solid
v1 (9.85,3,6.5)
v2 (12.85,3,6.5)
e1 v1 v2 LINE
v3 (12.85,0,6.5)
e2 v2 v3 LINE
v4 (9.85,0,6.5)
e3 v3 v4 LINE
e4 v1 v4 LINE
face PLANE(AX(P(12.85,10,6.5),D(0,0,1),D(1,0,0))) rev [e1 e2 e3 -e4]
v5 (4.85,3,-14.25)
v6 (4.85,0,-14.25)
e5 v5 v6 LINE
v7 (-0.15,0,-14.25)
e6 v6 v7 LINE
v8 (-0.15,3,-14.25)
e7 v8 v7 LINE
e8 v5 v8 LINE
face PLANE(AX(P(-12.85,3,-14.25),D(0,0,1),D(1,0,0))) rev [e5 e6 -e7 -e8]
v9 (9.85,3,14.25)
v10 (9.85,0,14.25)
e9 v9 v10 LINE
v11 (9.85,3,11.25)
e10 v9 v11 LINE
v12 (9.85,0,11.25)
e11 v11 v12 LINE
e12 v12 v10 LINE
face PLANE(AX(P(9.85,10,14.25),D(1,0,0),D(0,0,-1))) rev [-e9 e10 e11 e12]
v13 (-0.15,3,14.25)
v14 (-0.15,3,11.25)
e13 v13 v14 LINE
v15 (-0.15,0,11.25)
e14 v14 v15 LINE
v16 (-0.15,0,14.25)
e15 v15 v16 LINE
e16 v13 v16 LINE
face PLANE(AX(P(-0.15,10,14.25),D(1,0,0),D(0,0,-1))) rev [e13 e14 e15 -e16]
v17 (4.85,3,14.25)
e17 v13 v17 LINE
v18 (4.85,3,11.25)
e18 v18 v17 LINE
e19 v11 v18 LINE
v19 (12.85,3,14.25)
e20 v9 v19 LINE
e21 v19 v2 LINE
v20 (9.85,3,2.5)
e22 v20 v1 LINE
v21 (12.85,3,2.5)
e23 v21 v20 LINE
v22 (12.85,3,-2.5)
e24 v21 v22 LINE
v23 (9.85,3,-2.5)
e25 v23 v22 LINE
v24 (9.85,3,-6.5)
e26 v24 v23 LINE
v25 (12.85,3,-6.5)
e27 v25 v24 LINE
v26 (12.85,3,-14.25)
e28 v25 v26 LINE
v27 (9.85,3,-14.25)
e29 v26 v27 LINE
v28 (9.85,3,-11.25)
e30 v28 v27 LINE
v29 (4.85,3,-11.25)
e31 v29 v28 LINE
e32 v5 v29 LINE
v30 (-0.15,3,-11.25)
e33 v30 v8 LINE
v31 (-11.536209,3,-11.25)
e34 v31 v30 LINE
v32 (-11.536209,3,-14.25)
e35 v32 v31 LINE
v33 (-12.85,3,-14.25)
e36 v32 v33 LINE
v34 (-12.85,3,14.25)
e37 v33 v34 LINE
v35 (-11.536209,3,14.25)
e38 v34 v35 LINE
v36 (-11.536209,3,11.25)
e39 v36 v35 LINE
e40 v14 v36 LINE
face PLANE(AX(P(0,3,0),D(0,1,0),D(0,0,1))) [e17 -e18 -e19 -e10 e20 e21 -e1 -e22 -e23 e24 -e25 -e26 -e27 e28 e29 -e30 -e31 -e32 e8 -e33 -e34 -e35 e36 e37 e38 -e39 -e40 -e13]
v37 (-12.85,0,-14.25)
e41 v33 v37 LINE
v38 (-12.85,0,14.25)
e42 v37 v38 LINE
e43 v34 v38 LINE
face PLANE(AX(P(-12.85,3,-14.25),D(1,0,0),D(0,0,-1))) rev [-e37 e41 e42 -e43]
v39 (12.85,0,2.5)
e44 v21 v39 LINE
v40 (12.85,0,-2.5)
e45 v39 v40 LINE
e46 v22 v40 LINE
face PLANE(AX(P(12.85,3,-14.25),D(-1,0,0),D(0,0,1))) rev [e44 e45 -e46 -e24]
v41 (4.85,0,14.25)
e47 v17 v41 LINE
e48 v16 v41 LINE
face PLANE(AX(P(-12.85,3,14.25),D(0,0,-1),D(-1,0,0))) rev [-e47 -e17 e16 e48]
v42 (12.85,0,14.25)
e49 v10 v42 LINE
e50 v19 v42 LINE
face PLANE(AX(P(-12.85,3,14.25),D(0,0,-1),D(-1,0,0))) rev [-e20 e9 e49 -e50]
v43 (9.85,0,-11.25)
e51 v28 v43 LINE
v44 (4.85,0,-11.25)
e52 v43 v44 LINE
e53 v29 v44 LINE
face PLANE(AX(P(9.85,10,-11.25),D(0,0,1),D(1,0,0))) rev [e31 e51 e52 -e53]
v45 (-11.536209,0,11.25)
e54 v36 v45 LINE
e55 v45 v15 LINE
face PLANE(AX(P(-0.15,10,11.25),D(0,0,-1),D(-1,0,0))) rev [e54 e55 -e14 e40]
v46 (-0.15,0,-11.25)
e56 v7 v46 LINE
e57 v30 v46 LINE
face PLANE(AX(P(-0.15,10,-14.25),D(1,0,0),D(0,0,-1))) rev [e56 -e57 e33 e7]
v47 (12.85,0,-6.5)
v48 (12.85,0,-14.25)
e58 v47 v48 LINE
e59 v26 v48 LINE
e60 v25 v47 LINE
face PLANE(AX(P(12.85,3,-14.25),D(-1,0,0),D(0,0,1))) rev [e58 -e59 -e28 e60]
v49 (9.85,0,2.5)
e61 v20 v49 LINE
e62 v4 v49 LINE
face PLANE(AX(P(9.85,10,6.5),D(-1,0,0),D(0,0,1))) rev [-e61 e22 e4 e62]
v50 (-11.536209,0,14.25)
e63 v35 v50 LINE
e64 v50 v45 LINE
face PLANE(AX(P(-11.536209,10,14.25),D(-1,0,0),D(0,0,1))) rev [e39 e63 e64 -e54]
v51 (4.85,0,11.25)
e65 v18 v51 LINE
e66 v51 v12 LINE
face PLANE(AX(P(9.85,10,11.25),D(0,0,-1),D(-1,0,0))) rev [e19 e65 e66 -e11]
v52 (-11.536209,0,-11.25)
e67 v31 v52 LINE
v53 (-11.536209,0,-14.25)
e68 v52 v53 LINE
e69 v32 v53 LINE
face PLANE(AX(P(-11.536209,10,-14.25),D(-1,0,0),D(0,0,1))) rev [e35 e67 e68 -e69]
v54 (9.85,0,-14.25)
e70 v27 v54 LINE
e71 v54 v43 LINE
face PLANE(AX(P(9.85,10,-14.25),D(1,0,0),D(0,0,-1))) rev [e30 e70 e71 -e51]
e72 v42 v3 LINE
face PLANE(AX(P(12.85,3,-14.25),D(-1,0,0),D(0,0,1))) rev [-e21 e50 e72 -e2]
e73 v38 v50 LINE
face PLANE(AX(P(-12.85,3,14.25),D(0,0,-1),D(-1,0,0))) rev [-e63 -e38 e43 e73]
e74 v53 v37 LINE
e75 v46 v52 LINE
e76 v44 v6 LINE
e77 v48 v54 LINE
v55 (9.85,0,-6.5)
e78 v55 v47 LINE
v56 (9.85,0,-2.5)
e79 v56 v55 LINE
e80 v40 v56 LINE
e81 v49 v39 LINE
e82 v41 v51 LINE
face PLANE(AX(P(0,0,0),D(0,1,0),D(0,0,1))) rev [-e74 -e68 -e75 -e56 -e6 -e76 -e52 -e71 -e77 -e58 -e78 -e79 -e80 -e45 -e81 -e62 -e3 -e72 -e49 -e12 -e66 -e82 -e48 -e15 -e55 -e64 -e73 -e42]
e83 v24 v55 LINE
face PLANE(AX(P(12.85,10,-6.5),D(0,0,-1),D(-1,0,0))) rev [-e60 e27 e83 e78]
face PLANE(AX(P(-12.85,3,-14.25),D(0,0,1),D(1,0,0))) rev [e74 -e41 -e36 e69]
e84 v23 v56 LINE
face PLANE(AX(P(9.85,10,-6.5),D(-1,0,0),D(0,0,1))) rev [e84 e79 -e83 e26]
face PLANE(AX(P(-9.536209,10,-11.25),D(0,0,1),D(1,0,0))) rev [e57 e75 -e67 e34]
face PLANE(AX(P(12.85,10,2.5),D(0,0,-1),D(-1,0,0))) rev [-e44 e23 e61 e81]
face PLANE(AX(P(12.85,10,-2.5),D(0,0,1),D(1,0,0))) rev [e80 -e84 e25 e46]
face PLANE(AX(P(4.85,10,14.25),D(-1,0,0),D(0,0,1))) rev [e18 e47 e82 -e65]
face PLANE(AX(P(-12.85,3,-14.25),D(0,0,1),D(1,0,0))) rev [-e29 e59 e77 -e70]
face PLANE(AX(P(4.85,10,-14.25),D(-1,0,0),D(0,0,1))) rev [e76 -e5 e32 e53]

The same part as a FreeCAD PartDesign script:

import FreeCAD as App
import Part
import Sketcher
Q = App.Units.Quantity

doc = App.newDocument("Part")
body = doc.addObject("PartDesign::Body", "Body")

sketch1 = doc.addObject("Sketcher::SketchObject", "Sketch")
body.addObject(sketch1)
sketch1.AttachmentSupport = (doc.XZ_Plane, [""])
sketch1.MapMode = "FlatFace"
sketch1.addGeometry([
    Part.LineSegment(App.Vector(-13, -14, 0), App.Vector(-13, 14, 0)),
    Part.LineSegment(App.Vector(-13, 14, 0), App.Vector(13, 14, 0)),
    Part.LineSegment(App.Vector(13, 14, 0), App.Vector(13, -14, 0)),
    Part.LineSegment(App.Vector(13, -14, 0), App.Vector(-13, -14, 0)),
], False)
sketch1.addConstraint([
    Sketcher.Constraint("Coincident", 0, 2, 1, 1),
    Sketcher.Constraint("Coincident", 1, 2, 2, 1),
    Sketcher.Constraint("Coincident", 2, 2, 3, 1),
    Sketcher.Constraint("Coincident", 3, 2, 0, 1),
    Sketcher.Constraint("Vertical", 0),
    Sketcher.Constraint("Horizontal", 1),
    Sketcher.Constraint("Vertical", 2),
    Sketcher.Constraint("Horizontal", 3),
    Sketcher.Constraint("Symmetric", 0, 2, 2, 2, -1, 1),
    Sketcher.Constraint("DistanceX", 1, 1, 1, 2, Q("25.7 mm")),
    Sketcher.Constraint("DistanceY", 0, 1, 0, 2, Q("28.5 mm")),
])
pad1 = doc.addObject("PartDesign::Pad", "Pad")
body.addObject(pad1)
pad1.Profile = sketch1
pad1.Length = 3
pad1.Reversed = True

sketch2 = doc.addObject("Sketcher::SketchObject", "Sketch001")
body.addObject(sketch2)
sketch2.AttachmentSupport = (doc.XZ_Plane, [""])
sketch2.MapMode = "FlatFace"
sketch2.addGeometry([
    Part.LineSegment(App.Vector(4.8, -11.2, 0), App.Vector(4.8, -14.2, 0)),
    Part.LineSegment(App.Vector(4.8, -14.2, 0), App.Vector(9.8, -14.2, 0)),
    Part.LineSegment(App.Vector(9.8, -14.2, 0), App.Vector(9.8, -11.2, 0)),
    Part.LineSegment(App.Vector(9.8, -11.2, 0), App.Vector(4.8, -11.2, 0)),
    Part.LineSegment(App.Vector(-5.2, -11.2, 0), App.Vector(-5.2, -14.2, 0)),
    Part.LineSegment(App.Vector(-5.2, -14.2, 0), App.Vector(-0.1, -14.2, 0)),
    Part.LineSegment(App.Vector(-0.1, -14.2, 0), App.Vector(-0.1, -11.2, 0)),
    Part.LineSegment(App.Vector(-0.1, -11.2, 0), App.Vector(-5.2, -11.2, 0)),
    Part.LineSegment(App.Vector(-5.2, 14.2, 0), App.Vector(-5.2, 11.2, 0)),
    Part.LineSegment(App.Vector(-5.2, 11.2, 0), App.Vector(-0.1, 11.2, 0)),
    Part.LineSegment(App.Vector(-0.1, 11.2, 0), App.Vector(-0.1, 14.2, 0)),
    Part.LineSegment(App.Vector(-0.1, 14.2, 0), App.Vector(-5.2, 14.2, 0)),
    Part.LineSegment(App.Vector(4.8, 14.2, 0), App.Vector(4.8, 11.2, 0)),
    Part.LineSegment(App.Vector(4.8, 11.2, 0), App.Vector(9.8, 11.2, 0)),
    Part.LineSegment(App.Vector(9.8, 11.2, 0), App.Vector(9.8, 14.2, 0)),
    Part.LineSegment(App.Vector(9.8, 14.2, 0), App.Vector(4.8, 14.2, 0)),
    Part.LineSegment(App.Vector(-11.5, 14.2, 0), App.Vector(-11.5, 11.2, 0)),
    Part.LineSegment(App.Vector(-11.5, 11.2, 0), App.Vector(-9.5, 11.2, 0)),
    Part.LineSegment(App.Vector(-9.5, 11.2, 0), App.Vector(-9.5, 14.2, 0)),
    Part.LineSegment(App.Vector(-9.5, 14.2, 0), App.Vector(-11.5, 14.2, 0)),
    Part.LineSegment(App.Vector(-11.5, -11.2, 0), App.Vector(-11.5, -14.2, 0)),
    Part.LineSegment(App.Vector(-11.5, -14.2, 0), App.Vector(-9.5, -14.2, 0)),
    Part.LineSegment(App.Vector(-9.5, -14.2, 0), App.Vector(-9.5, -11.2, 0)),
    Part.LineSegment(App.Vector(-9.5, -11.2, 0), App.Vector(-11.5, -11.2, 0)),
    Part.LineSegment(App.Vector(9.8, -2.5, 0), App.Vector(9.8, -6.5, 0)),
    Part.LineSegment(App.Vector(9.8, -6.5, 0), App.Vector(12.8, -6.5, 0)),
    Part.LineSegment(App.Vector(12.8, -6.5, 0), App.Vector(12.8, -2.5, 0)),
    Part.LineSegment(App.Vector(12.8, -2.5, 0), App.Vector(9.8, -2.5, 0)),
    Part.LineSegment(App.Vector(9.8, 6.5, 0), App.Vector(9.8, 2.5, 0)),
    Part.LineSegment(App.Vector(9.8, 2.5, 0), App.Vector(12.8, 2.5, 0)),
    Part.LineSegment(App.Vector(12.8, 2.5, 0), App.Vector(12.8, 6.5, 0)),
    Part.LineSegment(App.Vector(12.8, 6.5, 0), App.Vector(9.8, 6.5, 0)),
], False)
sketch2.addConstraint([
    Sketcher.Constraint("Coincident", 0, 2, 1, 1),
    Sketcher.Constraint("Coincident", 1, 2, 2, 1),
    Sketcher.Constraint("Coincident", 2, 2, 3, 1),
    Sketcher.Constraint("Coincident", 3, 2, 0, 1),
    Sketcher.Constraint("Coincident", 4, 2, 5, 1),
    Sketcher.Constraint("Coincident", 5, 2, 6, 1),
    Sketcher.Constraint("Coincident", 6, 2, 7, 1),
    Sketcher.Constraint("Coincident", 7, 2, 4, 1),
    Sketcher.Constraint("Coincident", 8, 2, 9, 1),
    Sketcher.Constraint("Coincident", 9, 2, 10, 1),
    Sketcher.Constraint("Coincident", 10, 2, 11, 1),
    Sketcher.Constraint("Coincident", 11, 2, 8, 1),
    Sketcher.Constraint("Coincident", 12, 2, 13, 1),
    Sketcher.Constraint("Coincident", 13, 2, 14, 1),
    Sketcher.Constraint("Coincident", 14, 2, 15, 1),
    Sketcher.Constraint("Coincident", 15, 2, 12, 1),
    Sketcher.Constraint("Coincident", 16, 2, 17, 1),
    Sketcher.Constraint("Coincident", 17, 2, 18, 1),
    Sketcher.Constraint("Coincident", 18, 2, 19, 1),
    Sketcher.Constraint("Coincident", 19, 2, 16, 1),
    Sketcher.Constraint("Coincident", 20, 2, 21, 1),
    Sketcher.Constraint("Coincident", 21, 2, 22, 1),
    Sketcher.Constraint("Coincident", 22, 2, 23, 1),
    Sketcher.Constraint("Coincident", 23, 2, 20, 1),
    Sketcher.Constraint("Coincident", 24, 2, 25, 1),
    Sketcher.Constraint("Coincident", 25, 2, 26, 1),
    Sketcher.Constraint("Coincident", 26, 2, 27, 1),
    Sketcher.Constraint("Coincident", 27, 2, 24, 1),
    Sketcher.Constraint("Coincident", 28, 2, 29, 1),
    Sketcher.Constraint("Coincident", 29, 2, 30, 1),
    Sketcher.Constraint("Coincident", 30, 2, 31, 1),
    Sketcher.Constraint("Coincident", 31, 2, 28, 1),
    Sketcher.Constraint("Vertical", 0),
    Sketcher.Constraint("Horizontal", 1),
    Sketcher.Constraint("Vertical", 2),
    Sketcher.Constraint("Horizontal", 3),
    Sketcher.Constraint("Vertical", 4),
    Sketcher.Constraint("Horizontal", 5),
    Sketcher.Constraint("Vertical", 6),
    Sketcher.Constraint("Horizontal", 7),
    Sketcher.Constraint("Vertical", 8),
    Sketcher.Constraint("Horizontal", 9),
    Sketcher.Constraint("Vertical", 10),
    Sketcher.Constraint("Horizontal", 11),
    Sketcher.Constraint("Vertical", 12),
    Sketcher.Constraint("Horizontal", 13),
    Sketcher.Constraint("Vertical", 14),
    Sketcher.Constraint("Horizontal", 15),
    Sketcher.Constraint("Vertical", 16),
    Sketcher.Constraint("Horizontal", 17),
    Sketcher.Constraint("Vertical", 18),
    Sketcher.Constraint("Horizontal", 19),
    Sketcher.Constraint("Vertical", 20),
    Sketcher.Constraint("Horizontal", 21),
    Sketcher.Constraint("Vertical", 22),
    Sketcher.Constraint("Horizontal", 23),
    Sketcher.Constraint("Vertical", 24),
    Sketcher.Constraint("Horizontal", 25),
    Sketcher.Constraint("Vertical", 26),
    Sketcher.Constraint("Horizontal", 27),
    Sketcher.Constraint("Vertical", 28),
    Sketcher.Constraint("Horizontal", 29),
    Sketcher.Constraint("Vertical", 30),
    Sketcher.Constraint("Horizontal", 31),
    Sketcher.Constraint("Symmetric", 7, 2, 8, 2, -1),
    Sketcher.Constraint("Symmetric", 5, 2, 10, 2, -1),
    Sketcher.Constraint("Symmetric", 3, 2, 12, 2, -1),
    Sketcher.Constraint("Symmetric", 1, 2, 14, 2, -1),
    Sketcher.Constraint("Symmetric", 19, 2, 20, 2, -1),
    Sketcher.Constraint("Symmetric", 17, 2, 22, 2, -1),
    Sketcher.Constraint("Symmetric", 27, 2, 28, 2, -1),
    Sketcher.Constraint("Symmetric", 25, 2, 30, 2, -1),
    Sketcher.Constraint("Horizontal", 1, 2, 4, 2),
    Sketcher.Constraint("Horizontal", 3, 2, 6, 2),
    Sketcher.Constraint("Horizontal", 13, 2, 16, 2),
    Sketcher.Constraint("Horizontal", 15, 2, 18, 2),
    Sketcher.Constraint("Vertical", 14, 2, 24, 2),
    Sketcher.Constraint("Equal", 3, 5),
    Sketcher.Constraint("Equal", 31, 0),
    Sketcher.Constraint("DistanceX", 1, 1, 1, 2, Q("5 mm")),
    Sketcher.Constraint("DistanceX", 17, 1, 17, 2, Q("2 mm")),
    Sketcher.Constraint("DistanceX", 25, 1, 25, 2, Q("3 mm")),
    Sketcher.Constraint("DistanceY", 24, 2, 24, 1, Q("4 mm")),
    Sketcher.Constraint("DistanceX", 4, 2, 0, 2, Q("10 mm")),
    Sketcher.Constraint("DistanceY", 27, 2, 28, 2, Q("5 mm")),
    Sketcher.Constraint("DistanceY", 7, 2, 8, 2, Q("22.5 mm")),
    Sketcher.Constraint("DistanceX", -1, 1, 0, 2, Q("4.85 mm")),
    Sketcher.Constraint("DistanceX", 16, 2, -1, 1, Q("11.536209 mm")),
])
pocket1 = doc.addObject("PartDesign::Pocket", "Pocket")
body.addObject(pocket1)
pocket1.Profile = sketch2
pocket1.Length = 10

sketch3 = doc.addObject("Sketcher::SketchObject", "Sketch002")
body.addObject(sketch3)
sketch3.AttachmentSupport = (doc.XZ_Plane, [""])
sketch3.MapMode = "FlatFace"
sketch3.addGeometry([
    Part.LineSegment(App.Vector(-9.8, -11.2, 0), App.Vector(-9.8, -16.1, 0)),
    Part.LineSegment(App.Vector(-9.8, -16.1, 0), App.Vector(-4.8, -16.1, 0)),
    Part.LineSegment(App.Vector(-4.8, -16.1, 0), App.Vector(-4.8, -11.2, 0)),
    Part.LineSegment(App.Vector(-4.8, -11.2, 0), App.Vector(-9.8, -11.2, 0)),
    Part.LineSegment(App.Vector(-9.8, 16.1, 0), App.Vector(-9.8, 11.2, 0)),
    Part.LineSegment(App.Vector(-9.8, 11.2, 0), App.Vector(-4.8, 11.2, 0)),
    Part.LineSegment(App.Vector(-4.8, 11.2, 0), App.Vector(-4.8, 16.1, 0)),
    Part.LineSegment(App.Vector(-4.8, 16.1, 0), App.Vector(-9.8, 16.1, 0)),
], False)
sketch3.addConstraint([
    Sketcher.Constraint("Coincident", 0, 2, 1, 1),
    Sketcher.Constraint("Coincident", 1, 2, 2, 1),
    Sketcher.Constraint("Coincident", 2, 2, 3, 1),
    Sketcher.Constraint("Coincident", 3, 2, 0, 1),
    Sketcher.Constraint("Coincident", 4, 2, 5, 1),
    Sketcher.Constraint("Coincident", 5, 2, 6, 1),
    Sketcher.Constraint("Coincident", 6, 2, 7, 1),
    Sketcher.Constraint("Coincident", 7, 2, 4, 1),
    Sketcher.Constraint("Vertical", 0),
    Sketcher.Constraint("Horizontal", 1),
    Sketcher.Constraint("Vertical", 2),
    Sketcher.Constraint("Horizontal", 3),
    Sketcher.Constraint("Vertical", 4),
    Sketcher.Constraint("Horizontal", 5),
    Sketcher.Constraint("Vertical", 6),
    Sketcher.Constraint("Horizontal", 7),
    Sketcher.Constraint("Symmetric", 3, 2, 4, 2, -1),
    Sketcher.Constraint("Symmetric", 1, 2, 6, 2, -1),
    Sketcher.Constraint("DistanceX", 1, 1, 1, 2, Q("5 mm")),
    Sketcher.Constraint("DistanceY", 3, 2, 4, 2, Q("22.5 mm")),
    Sketcher.Constraint("DistanceX", 0, 2, -1, 1, Q("9.85 mm")),
    Sketcher.Constraint("DistanceY", 0, 2, 0, 1, Q("4.849935 mm")),
])
pocket2 = doc.addObject("PartDesign::Pocket", "Pocket001")
body.addObject(pocket2)
pocket2.Profile = sketch3
pocket2.Length = 3

doc.recompute()
